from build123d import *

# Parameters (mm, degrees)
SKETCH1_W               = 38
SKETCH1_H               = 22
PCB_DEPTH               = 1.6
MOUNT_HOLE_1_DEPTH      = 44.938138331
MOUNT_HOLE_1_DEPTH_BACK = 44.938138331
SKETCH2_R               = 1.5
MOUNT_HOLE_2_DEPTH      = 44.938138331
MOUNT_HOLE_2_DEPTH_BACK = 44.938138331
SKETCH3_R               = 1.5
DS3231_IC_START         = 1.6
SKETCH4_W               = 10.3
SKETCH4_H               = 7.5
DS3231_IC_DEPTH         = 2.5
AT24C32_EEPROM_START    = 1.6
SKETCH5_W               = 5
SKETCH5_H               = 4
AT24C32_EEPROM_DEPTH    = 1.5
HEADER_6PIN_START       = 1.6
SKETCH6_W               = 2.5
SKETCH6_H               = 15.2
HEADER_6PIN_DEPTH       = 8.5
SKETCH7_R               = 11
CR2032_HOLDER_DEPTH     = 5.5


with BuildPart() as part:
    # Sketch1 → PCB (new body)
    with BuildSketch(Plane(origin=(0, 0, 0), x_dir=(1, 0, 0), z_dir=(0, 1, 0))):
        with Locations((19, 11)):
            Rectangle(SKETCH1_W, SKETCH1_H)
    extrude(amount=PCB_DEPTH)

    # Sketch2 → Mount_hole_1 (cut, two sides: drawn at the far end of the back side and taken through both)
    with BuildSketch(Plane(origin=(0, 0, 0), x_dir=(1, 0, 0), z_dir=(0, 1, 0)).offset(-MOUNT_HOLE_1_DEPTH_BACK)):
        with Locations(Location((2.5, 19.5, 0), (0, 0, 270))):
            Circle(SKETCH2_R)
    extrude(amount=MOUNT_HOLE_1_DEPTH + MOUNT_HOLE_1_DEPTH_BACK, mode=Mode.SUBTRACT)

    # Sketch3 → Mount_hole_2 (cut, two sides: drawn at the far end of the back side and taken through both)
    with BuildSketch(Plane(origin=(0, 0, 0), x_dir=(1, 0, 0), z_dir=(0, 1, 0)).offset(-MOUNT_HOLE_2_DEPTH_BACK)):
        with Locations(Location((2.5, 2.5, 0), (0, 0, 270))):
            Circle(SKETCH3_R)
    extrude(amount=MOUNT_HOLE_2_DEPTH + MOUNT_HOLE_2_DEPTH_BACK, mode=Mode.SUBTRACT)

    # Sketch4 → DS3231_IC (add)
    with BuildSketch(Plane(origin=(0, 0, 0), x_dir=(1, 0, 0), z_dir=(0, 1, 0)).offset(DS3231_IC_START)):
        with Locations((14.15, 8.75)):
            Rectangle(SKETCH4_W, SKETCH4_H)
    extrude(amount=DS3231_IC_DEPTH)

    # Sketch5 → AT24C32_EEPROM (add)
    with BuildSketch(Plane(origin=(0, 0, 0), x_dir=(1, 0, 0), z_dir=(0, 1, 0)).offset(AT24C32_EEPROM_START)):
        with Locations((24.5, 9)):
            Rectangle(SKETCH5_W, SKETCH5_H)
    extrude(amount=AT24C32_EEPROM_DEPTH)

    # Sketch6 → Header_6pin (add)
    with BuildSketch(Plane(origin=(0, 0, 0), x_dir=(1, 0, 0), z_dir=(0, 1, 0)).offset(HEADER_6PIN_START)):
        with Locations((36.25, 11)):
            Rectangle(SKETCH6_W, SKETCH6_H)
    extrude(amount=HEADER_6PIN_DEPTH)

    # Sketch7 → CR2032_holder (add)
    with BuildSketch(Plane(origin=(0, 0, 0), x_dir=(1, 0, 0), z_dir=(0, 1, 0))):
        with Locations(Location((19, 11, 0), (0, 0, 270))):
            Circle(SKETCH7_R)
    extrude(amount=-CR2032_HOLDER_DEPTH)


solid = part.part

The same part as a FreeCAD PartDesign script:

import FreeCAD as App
import Part
import Sketcher


def add_polygon(sketch, points):
    """Adds a closed chain of lines whose ends are joined by coincident constraints."""
    first, n = sketch.GeometryCount, len(points)
    for a, b in zip(points, points[1:] + points[:1]):
        sketch.addGeometry(Part.LineSegment(App.Vector(*a, 0), App.Vector(*b, 0)), False)
    for i in range(n):
        sketch.addConstraint(Sketcher.Constraint("Coincident", first + i, 2, first + (i + 1) % n, 1))

doc = App.newDocument("Part")
body = doc.addObject("PartDesign::Body", "Body")

# Sketch on XZ plane
sketch1 = body.newObject("Sketcher::SketchObject", "Sketch")
sketch1.AttachmentSupport = (doc.getObject("XZ_Plane"), [""])
sketch1.MapMode = "FlatFace"
add_polygon(sketch1, [(0, -22), (0, 0), (38, 0), (38, -22)])  # lines 0-3
sketch1.addConstraint([
    Sketcher.Constraint("Vertical", 0),
    Sketcher.Constraint("Horizontal", 1),
    Sketcher.Constraint("Vertical", 2),
    Sketcher.Constraint("Horizontal", 3),
    Sketcher.Constraint("Coincident", 0, 2, -1, 1),
    Sketcher.Constraint("DistanceX", 1, 1, 1, 2, 38.0),
    Sketcher.Constraint("DistanceY", 0, 1, 0, 2, 22.0),
])
pad1 = body.newObject("PartDesign::Pad", "Pad")
pad1.Profile = sketch1
pad1.Length = 1.6
pad1.Reversed = True

# Sketch on XZ plane
sketch2 = body.newObject("Sketcher::SketchObject", "Sketch001")
sketch2.AttachmentSupport = (doc.getObject("XZ_Plane"), [""])
sketch2.MapMode = "FlatFace"
sketch2.addGeometry(Part.Circle(App.Vector(2.5, -19.5, 0), App.Vector(0, 0, 1), 1.5), False)
sketch2.addConstraint([
    Sketcher.Constraint("Diameter", 0, 3.0),
    Sketcher.Constraint("DistanceX", -1, 1, 0, 3, 2.5),
    Sketcher.Constraint("DistanceY", 0, 3, -1, 1, 19.5),
])
pocket1 = body.newObject("PartDesign::Pocket", "Pocket")
pocket1.Profile = sketch2
pocket1.Type = "ThroughAll"
pocket1.Midplane = True

# Sketch on XZ plane
sketch3 = body.newObject("Sketcher::SketchObject", "Sketch002")
sketch3.AttachmentSupport = (doc.getObject("XZ_Plane"), [""])
sketch3.MapMode = "FlatFace"
sketch3.addGeometry(Part.Circle(App.Vector(2.5, -2.5, 0), App.Vector(0, 0, 1), 1.5), False)
sketch3.addConstraint([
    Sketcher.Constraint("Diameter", 0, 3.0),
    Sketcher.Constraint("DistanceX", -1, 1, 0, 3, 2.5),
    Sketcher.Constraint("DistanceY", 0, 3, -1, 1, 2.5),
])
pocket2 = body.newObject("PartDesign::Pocket", "Pocket001")
pocket2.Profile = sketch3
pocket2.Type = "ThroughAll"
pocket2.Midplane = True

# Sketch on XZ plane
sketch4 = body.newObject("Sketcher::SketchObject", "Sketch003")
sketch4.AttachmentSupport = (doc.getObject("XZ_Plane"), [""])
sketch4.MapMode = "FlatFace"
sketch4.AttachmentOffset = App.Placement(App.Vector(0, 0, -1.6), App.Rotation())
add_polygon(sketch4, [(9, -12), (9, -5), (19, -5), (19, -12)])  # lines 0-3
sketch4.addConstraint([
    Sketcher.Constraint("Vertical", 0),
    Sketcher.Constraint("Horizontal", 1),
    Sketcher.Constraint("Vertical", 2),
    Sketcher.Constraint("Horizontal", 3),
    Sketcher.Constraint("DistanceX", 1, 1, 1, 2, 10.3),
    Sketcher.Constraint("DistanceY", 0, 1, 0, 2, 7.5),
    Sketcher.Constraint("DistanceX", -1, 1, 0, 2, 9.0),
    Sketcher.Constraint("DistanceY", 0, 2, -1, 1, 5.0),
])
pad2 = body.newObject("PartDesign::Pad", "Pad001")
pad2.Profile = sketch4
pad2.Length = 2.5
pad2.Reversed = True

# Sketch on XZ plane
sketch5 = body.newObject("Sketcher::SketchObject", "Sketch004")
sketch5.AttachmentSupport = (doc.getObject("XZ_Plane"), [""])
sketch5.MapMode = "FlatFace"
sketch5.AttachmentOffset = App.Placement(App.Vector(0, 0, -1.6), App.Rotation())
add_polygon(sketch5, [(22, -11), (22, -7), (27, -7), (27, -11)])  # lines 0-3
sketch5.addConstraint([
    Sketcher.Constraint("Vertical", 0),
    Sketcher.Constraint("Horizontal", 1),
    Sketcher.Constraint("Vertical", 2),
    Sketcher.Constraint("Horizontal", 3),
    Sketcher.Constraint("DistanceX", 1, 1, 1, 2, 5.0),
    Sketcher.Constraint("DistanceY", 0, 1, 0, 2, 4.0),
    Sketcher.Constraint("DistanceX", -1, 1, 0, 2, 22.0),
    Sketcher.Constraint("DistanceY", 0, 2, -1, 1, 7.0),
])
pad3 = body.newObject("PartDesign::Pad", "Pad002")
pad3.Profile = sketch5
pad3.Length = 1.5
pad3.Reversed = True

# Sketch on XZ plane
sketch6 = body.newObject("Sketcher::SketchObject", "Sketch005")
sketch6.AttachmentSupport = (doc.getObject("XZ_Plane"), [""])
sketch6.MapMode = "FlatFace"
sketch6.AttachmentOffset = App.Placement(App.Vector(0, 0, -1.6), App.Rotation())
add_polygon(sketch6, [(35, -18.6), (35, -3.4), (37.5, -3.4), (37.5, -18.6)])  # lines 0-3
sketch6.addConstraint([
    Sketcher.Constraint("Vertical", 0),
    Sketcher.Constraint("Horizontal", 1),
    Sketcher.Constraint("Vertical", 2),
    Sketcher.Constraint("Horizontal", 3),
    Sketcher.Constraint("DistanceX", 1, 1, 1, 2, 2.5),
    Sketcher.Constraint("DistanceY", 0, 1, 0, 2, 15.2),
    Sketcher.Constraint("DistanceX", -1, 1, 0, 2, 35.0),
    Sketcher.Constraint("DistanceY", 0, 2, -1, 1, 3.4),
])
pad4 = body.newObject("PartDesign::Pad", "Pad003")
pad4.Profile = sketch6
pad4.Length = 8.5
pad4.Reversed = True

# Sketch on XZ plane
sketch7 = body.newObject("Sketcher::SketchObject", "Sketch006")
sketch7.AttachmentSupport = (doc.getObject("XZ_Plane"), [""])
sketch7.MapMode = "FlatFace"
sketch7.addGeometry(Part.Circle(App.Vector(19, -11, 0), App.Vector(0, 0, 1), 11), False)
sketch7.addConstraint([
    Sketcher.Constraint("Diameter", 0, 22.0),
    Sketcher.Constraint("DistanceX", -1, 1, 0, 3, 19.0),
    Sketcher.Constraint("DistanceY", 0, 3, -1, 1, 11.0),
])
pad5 = body.newObject("PartDesign::Pad", "Pad004")
pad5.Profile = sketch7
pad5.Length = 5.5

doc.recompute()
